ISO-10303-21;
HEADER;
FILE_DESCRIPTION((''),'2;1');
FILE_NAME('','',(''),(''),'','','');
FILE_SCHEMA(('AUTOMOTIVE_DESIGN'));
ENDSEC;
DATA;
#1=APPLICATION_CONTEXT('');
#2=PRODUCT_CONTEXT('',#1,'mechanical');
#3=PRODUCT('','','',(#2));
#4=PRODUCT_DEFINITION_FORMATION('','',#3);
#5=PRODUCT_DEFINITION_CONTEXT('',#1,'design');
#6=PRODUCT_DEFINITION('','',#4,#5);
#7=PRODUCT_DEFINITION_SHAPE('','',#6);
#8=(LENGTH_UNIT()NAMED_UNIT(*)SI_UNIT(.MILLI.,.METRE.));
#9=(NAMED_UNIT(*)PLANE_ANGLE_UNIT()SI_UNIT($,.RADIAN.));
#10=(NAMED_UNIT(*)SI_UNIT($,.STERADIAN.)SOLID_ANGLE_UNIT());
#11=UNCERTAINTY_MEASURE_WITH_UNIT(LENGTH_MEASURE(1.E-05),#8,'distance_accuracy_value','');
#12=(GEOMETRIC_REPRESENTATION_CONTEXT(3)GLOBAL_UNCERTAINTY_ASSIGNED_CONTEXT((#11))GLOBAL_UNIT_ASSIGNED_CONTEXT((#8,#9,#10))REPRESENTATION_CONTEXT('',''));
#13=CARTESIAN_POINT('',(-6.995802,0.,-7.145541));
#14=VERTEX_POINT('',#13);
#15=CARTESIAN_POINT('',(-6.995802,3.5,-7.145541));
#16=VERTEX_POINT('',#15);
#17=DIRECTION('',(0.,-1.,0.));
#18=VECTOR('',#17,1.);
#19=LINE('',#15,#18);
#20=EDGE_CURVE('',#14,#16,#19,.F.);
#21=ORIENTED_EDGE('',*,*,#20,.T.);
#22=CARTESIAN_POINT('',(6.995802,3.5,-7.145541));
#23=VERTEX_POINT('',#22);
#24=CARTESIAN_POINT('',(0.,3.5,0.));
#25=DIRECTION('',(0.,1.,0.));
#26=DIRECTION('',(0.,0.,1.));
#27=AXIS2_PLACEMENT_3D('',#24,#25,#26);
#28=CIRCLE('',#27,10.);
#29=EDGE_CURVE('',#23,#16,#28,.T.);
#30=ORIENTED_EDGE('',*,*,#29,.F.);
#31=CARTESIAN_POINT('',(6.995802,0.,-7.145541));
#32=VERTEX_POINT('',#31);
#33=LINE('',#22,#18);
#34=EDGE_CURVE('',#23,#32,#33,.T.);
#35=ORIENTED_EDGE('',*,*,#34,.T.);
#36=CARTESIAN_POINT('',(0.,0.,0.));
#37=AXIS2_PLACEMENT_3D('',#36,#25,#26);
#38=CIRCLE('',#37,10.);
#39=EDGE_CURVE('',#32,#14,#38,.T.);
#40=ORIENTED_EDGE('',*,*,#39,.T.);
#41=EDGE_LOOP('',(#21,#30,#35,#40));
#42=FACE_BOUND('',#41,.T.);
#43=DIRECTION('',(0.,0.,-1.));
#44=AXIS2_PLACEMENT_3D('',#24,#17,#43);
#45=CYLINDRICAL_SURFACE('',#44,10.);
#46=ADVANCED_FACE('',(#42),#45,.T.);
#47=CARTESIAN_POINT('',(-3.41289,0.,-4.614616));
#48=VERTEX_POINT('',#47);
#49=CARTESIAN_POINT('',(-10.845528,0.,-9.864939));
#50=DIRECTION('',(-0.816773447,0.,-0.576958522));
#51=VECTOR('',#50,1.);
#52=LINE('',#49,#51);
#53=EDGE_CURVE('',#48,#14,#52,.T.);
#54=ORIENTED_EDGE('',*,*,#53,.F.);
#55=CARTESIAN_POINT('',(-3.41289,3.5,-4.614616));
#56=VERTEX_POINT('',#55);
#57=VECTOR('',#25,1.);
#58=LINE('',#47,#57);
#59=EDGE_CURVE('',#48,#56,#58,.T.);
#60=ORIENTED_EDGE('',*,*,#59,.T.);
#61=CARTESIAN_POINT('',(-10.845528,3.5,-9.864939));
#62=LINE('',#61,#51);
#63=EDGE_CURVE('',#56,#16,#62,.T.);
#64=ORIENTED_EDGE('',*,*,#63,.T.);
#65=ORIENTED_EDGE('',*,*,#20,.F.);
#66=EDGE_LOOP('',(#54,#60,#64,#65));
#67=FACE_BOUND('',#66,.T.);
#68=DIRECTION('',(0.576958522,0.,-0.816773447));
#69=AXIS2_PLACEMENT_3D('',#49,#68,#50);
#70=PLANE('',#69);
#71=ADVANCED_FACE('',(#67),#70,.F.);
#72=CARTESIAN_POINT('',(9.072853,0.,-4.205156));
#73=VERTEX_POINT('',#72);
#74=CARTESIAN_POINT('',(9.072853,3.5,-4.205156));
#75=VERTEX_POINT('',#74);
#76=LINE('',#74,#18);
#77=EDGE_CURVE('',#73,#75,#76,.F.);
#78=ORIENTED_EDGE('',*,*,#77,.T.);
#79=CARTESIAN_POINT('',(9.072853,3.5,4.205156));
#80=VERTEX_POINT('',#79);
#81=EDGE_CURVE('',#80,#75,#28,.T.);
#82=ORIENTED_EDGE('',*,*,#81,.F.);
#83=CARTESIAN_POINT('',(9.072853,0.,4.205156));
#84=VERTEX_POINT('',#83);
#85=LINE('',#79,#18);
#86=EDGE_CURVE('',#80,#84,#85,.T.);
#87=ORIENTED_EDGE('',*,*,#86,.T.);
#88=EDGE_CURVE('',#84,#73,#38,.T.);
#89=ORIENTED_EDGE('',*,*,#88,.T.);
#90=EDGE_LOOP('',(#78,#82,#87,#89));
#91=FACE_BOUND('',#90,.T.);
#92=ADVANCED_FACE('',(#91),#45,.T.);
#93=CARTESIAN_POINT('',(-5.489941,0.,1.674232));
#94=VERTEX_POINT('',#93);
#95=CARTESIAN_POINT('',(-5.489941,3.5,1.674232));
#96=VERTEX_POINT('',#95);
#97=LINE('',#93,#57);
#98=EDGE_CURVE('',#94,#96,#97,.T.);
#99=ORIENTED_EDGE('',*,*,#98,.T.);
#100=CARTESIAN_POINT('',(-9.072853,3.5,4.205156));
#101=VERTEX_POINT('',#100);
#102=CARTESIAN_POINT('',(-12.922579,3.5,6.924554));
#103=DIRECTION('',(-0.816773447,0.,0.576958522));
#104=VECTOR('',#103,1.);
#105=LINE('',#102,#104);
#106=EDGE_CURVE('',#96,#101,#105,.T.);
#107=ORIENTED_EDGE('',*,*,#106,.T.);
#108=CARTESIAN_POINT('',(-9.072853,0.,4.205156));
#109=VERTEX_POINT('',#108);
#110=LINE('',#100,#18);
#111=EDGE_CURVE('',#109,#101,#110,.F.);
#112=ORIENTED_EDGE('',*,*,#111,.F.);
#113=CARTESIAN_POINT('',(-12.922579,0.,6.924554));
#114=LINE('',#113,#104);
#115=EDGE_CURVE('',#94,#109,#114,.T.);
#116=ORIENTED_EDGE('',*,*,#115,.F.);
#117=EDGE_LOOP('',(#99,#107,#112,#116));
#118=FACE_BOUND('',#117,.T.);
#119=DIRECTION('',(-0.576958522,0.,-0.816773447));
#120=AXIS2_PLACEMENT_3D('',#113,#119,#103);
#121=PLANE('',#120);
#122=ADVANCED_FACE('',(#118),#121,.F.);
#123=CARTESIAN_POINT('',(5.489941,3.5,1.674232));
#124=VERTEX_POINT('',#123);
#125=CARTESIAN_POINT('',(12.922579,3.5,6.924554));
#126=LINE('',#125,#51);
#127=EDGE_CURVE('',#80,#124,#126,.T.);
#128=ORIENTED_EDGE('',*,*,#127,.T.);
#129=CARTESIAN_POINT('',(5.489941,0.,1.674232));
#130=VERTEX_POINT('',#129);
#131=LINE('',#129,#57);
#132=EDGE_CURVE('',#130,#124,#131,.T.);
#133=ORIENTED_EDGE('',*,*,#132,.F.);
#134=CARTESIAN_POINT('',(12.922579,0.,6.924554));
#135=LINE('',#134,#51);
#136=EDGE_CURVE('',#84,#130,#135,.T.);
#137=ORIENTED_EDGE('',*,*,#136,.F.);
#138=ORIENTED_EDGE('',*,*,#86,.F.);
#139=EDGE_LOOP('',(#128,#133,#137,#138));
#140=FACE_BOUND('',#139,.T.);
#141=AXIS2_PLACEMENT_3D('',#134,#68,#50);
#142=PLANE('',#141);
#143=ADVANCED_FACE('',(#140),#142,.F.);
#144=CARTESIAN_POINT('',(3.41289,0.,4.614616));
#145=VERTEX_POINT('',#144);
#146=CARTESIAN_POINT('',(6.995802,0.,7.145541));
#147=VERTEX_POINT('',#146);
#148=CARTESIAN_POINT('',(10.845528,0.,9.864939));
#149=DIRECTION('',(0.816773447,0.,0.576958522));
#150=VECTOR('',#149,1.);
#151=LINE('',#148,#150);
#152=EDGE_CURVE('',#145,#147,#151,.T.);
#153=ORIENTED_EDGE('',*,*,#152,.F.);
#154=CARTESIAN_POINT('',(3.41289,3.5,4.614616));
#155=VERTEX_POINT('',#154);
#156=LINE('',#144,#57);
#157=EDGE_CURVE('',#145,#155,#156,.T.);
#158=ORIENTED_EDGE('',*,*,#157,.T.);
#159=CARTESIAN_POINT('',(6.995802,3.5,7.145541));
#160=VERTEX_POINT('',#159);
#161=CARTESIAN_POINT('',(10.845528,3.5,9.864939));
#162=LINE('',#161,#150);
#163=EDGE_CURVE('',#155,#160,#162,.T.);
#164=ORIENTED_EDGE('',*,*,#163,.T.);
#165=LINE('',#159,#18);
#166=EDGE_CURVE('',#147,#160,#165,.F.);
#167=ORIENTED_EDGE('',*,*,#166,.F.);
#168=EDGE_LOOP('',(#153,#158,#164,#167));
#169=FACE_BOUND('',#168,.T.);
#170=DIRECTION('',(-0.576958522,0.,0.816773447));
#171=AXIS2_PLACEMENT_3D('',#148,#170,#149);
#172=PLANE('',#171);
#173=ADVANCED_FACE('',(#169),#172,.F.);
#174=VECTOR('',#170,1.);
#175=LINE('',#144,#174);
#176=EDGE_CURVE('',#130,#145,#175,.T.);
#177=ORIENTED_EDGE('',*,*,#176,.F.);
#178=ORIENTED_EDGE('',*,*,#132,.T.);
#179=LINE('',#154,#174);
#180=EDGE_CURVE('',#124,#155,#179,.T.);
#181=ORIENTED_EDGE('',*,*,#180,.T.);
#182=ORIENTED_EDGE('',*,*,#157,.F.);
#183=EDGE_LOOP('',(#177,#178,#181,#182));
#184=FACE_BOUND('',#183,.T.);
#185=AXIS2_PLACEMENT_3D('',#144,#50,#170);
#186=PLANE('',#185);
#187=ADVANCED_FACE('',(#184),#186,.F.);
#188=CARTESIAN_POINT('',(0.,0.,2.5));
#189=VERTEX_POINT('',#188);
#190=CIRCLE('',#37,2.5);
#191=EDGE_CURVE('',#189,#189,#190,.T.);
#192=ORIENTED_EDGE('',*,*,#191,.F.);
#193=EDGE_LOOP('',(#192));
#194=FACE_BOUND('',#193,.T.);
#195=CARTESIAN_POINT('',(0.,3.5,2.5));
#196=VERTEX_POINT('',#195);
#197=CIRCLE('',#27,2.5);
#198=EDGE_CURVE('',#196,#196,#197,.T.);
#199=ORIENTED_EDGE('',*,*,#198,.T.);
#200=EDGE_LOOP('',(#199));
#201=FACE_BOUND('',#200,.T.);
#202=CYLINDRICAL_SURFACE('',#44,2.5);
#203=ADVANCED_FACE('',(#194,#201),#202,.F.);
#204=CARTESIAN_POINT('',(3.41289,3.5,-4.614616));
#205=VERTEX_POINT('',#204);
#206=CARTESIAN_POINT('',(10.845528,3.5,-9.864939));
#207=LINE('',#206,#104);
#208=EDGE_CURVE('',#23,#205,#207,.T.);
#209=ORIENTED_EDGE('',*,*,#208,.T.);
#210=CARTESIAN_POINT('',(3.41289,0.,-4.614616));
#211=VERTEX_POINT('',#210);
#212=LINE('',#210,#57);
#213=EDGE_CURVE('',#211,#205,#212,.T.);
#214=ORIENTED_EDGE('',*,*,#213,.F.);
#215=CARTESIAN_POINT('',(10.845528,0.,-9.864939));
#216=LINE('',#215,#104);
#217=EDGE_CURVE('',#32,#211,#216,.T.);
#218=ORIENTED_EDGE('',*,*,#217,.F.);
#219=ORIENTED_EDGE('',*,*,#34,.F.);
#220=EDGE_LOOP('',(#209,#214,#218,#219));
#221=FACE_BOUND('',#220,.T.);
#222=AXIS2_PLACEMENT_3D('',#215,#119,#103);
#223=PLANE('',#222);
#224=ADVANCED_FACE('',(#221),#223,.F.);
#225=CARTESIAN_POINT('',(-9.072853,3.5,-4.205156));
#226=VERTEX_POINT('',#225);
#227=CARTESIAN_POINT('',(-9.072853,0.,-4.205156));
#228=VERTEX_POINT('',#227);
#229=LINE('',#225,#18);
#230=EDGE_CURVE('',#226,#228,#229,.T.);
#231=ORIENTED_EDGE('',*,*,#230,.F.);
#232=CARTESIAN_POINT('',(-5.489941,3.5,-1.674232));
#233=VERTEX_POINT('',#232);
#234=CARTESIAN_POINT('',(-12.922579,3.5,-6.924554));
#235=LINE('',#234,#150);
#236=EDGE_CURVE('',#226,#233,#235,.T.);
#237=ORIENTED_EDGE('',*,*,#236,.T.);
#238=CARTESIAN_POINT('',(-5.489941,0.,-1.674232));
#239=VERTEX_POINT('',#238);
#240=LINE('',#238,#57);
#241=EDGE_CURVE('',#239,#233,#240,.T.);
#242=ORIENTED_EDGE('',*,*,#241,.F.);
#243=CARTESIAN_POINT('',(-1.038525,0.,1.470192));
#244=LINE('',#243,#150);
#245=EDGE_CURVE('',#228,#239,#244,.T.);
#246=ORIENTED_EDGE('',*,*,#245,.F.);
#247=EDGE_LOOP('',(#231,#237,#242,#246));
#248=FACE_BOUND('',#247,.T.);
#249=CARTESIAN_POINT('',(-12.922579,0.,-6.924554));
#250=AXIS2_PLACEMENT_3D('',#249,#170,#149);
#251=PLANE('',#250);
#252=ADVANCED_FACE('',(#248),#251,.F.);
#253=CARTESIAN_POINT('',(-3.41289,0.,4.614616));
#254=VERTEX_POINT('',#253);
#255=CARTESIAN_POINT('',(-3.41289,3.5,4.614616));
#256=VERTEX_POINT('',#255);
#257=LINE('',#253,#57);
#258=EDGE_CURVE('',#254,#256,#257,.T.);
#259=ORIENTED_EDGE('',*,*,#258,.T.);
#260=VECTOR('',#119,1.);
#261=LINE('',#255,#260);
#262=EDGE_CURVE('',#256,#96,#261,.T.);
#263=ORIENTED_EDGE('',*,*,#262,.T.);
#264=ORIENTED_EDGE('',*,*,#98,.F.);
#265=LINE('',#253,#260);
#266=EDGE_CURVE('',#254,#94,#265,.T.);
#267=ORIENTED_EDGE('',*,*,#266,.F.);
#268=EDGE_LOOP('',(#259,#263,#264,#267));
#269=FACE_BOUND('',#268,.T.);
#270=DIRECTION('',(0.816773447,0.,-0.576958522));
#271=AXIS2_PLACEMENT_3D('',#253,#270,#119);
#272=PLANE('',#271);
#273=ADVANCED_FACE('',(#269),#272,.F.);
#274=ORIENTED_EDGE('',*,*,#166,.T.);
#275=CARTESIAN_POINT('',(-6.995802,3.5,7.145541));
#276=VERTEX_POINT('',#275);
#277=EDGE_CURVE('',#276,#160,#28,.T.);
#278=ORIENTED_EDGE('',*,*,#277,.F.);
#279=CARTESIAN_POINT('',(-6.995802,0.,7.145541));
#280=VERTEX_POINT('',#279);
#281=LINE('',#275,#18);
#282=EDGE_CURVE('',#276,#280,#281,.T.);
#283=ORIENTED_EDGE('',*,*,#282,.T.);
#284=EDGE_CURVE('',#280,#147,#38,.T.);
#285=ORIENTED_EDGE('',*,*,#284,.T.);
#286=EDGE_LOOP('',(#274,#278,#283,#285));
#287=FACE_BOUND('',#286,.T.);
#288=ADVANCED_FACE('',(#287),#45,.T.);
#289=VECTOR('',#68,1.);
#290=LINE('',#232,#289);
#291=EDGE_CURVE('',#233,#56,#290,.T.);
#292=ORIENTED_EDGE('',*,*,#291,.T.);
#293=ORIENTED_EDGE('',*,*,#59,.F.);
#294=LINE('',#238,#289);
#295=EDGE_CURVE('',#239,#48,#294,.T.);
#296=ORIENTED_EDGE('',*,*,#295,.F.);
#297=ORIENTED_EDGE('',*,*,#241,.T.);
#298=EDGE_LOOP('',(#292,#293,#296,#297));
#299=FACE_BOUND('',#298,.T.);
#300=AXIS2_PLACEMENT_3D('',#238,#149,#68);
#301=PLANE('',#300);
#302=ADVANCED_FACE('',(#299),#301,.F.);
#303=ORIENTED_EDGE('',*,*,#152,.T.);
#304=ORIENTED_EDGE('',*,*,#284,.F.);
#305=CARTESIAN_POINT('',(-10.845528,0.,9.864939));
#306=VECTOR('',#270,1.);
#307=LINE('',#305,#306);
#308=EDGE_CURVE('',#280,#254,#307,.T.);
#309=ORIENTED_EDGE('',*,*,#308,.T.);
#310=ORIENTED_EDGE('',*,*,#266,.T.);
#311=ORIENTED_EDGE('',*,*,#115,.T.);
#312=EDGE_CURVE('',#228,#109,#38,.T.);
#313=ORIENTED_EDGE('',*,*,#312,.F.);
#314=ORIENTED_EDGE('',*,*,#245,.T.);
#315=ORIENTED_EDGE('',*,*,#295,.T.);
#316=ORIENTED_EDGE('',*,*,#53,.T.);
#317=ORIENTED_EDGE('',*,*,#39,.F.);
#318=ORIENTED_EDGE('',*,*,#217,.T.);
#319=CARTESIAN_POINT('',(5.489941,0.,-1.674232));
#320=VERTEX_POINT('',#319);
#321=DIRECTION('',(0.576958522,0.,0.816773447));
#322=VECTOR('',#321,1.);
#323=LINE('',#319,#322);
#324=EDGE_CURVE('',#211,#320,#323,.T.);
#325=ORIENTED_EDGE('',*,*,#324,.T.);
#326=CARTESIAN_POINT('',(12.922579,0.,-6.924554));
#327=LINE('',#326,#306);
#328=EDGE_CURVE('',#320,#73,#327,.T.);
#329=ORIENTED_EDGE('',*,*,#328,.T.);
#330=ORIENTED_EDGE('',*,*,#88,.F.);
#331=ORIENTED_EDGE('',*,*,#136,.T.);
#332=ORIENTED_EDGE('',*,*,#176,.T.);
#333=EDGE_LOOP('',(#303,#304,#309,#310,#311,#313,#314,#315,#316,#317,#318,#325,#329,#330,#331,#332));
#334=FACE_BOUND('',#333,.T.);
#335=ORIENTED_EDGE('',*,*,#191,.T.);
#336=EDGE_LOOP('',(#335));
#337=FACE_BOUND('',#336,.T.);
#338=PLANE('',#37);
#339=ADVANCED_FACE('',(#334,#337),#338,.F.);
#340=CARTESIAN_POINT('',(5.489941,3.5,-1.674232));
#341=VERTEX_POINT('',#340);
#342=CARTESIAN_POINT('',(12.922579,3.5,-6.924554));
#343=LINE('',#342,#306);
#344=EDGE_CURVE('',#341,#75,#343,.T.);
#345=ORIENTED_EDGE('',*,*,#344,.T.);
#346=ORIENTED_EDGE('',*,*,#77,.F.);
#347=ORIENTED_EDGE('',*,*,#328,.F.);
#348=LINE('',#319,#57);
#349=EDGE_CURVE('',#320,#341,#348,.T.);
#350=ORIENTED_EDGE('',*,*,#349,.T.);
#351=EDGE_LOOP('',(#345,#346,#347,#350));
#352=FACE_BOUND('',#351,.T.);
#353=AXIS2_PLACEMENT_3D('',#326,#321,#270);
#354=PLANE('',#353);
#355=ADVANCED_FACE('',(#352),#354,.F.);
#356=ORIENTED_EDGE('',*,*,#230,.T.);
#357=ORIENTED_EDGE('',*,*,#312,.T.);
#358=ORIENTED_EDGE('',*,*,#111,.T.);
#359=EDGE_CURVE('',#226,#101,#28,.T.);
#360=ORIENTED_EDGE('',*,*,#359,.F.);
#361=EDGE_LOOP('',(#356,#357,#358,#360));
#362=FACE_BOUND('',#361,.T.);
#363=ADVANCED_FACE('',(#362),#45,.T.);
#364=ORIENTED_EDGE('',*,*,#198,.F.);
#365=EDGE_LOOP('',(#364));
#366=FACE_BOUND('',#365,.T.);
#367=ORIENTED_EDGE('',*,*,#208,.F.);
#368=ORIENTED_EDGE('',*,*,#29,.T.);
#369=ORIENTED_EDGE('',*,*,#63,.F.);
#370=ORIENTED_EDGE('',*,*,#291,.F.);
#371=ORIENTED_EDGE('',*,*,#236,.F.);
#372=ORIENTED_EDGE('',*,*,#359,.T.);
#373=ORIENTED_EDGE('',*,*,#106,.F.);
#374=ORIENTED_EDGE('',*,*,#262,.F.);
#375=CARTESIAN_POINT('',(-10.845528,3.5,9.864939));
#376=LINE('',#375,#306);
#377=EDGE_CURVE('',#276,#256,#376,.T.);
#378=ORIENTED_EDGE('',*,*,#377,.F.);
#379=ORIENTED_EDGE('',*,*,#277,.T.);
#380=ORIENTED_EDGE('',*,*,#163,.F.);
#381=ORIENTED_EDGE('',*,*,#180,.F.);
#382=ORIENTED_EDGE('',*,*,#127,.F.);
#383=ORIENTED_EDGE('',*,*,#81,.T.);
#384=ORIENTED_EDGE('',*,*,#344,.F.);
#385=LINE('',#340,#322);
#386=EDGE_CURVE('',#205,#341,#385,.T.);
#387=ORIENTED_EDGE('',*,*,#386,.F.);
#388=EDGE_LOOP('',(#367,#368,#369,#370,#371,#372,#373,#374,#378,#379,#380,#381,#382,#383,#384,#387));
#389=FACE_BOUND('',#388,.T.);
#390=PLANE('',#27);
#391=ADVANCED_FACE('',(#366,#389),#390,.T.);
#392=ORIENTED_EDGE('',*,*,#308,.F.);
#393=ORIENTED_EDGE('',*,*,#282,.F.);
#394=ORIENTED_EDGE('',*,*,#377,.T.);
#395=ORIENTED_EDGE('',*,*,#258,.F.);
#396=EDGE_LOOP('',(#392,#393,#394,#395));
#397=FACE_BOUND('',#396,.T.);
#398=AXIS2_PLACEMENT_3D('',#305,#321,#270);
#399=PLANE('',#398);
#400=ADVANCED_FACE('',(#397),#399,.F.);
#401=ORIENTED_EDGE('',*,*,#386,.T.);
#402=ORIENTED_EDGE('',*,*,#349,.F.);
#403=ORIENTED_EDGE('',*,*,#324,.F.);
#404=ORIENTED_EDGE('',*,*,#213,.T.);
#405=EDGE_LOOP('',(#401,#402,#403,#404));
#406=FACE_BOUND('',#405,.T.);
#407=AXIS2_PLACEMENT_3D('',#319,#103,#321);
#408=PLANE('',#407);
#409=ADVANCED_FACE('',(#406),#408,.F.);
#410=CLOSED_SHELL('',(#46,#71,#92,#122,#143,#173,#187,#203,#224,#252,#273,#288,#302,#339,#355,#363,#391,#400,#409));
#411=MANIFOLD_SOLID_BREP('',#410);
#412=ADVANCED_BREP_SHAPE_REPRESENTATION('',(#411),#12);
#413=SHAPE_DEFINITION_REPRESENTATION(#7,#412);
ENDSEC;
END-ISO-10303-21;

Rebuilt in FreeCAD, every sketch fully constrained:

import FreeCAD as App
import Part
import Sketcher


def add_polygon(sketch, points):
    """Adds a closed chain of lines whose ends are joined by coincident constraints."""
    first, n = sketch.GeometryCount, len(points)
    for a, b in zip(points, points[1:] + points[:1]):
        sketch.addGeometry(Part.LineSegment(App.Vector(*a, 0), App.Vector(*b, 0)), False)
    for i in range(n):
        sketch.addConstraint(Sketcher.Constraint("Coincident", first + i, 2, first + (i + 1) % n, 1))

doc = App.newDocument("Part")
body = doc.addObject("PartDesign::Body", "Body")

sketch1 = doc.addObject("Sketcher::SketchObject", "Sketch")
body.addObject(sketch1)
sketch1.AttachmentSupport = (doc.XZ_Plane, [""])
sketch1.MapMode = "FlatFace"
sketch1.addGeometry([
    Part.Circle(App.Vector(0, 0, 0), App.Vector(0, 0, 1), 10),
    Part.Circle(App.Vector(0, 0, 0), App.Vector(0, 0, 1), 2.5),
], False)
sketch1.addConstraint([
    Sketcher.Constraint("Coincident", 0, 3, -1, 1),
    Sketcher.Constraint("Coincident", 1, 3, -1, 1),
    Sketcher.Constraint("Diameter", 0, 20.0),
    Sketcher.Constraint("Diameter", 1, 5.0),
])
pad1 = doc.addObject("PartDesign::Pad", "Pad")
body.addObject(pad1)
pad1.Profile = sketch1
pad1.Length = 3.5
pad1.Reversed = True

sketch2 = doc.addObject("Sketcher::SketchObject", "Sketch001")
body.addObject(sketch2)
sketch2.AttachmentSupport = (doc.XZ_Plane, [""])
sketch2.MapMode = "FlatFace"
sketch2.AttachmentOffset = App.Placement(App.Vector(0, 0, -3.5), App.Rotation())
add_polygon(sketch2, [(5.5, -1.7), (12.9, -6.9), (10.8, -9.9), (3.4, -4.6)])
add_polygon(sketch2, [(-3.4, 4.6), (-5.5, 1.7), (-12.9, 6.9), (-10.8, 9.9)])
add_polygon(sketch2, [(3.4, 4.6), (10.8, 9.9), (12.9, 6.9), (5.5, 1.7)])
add_polygon(sketch2, [(-5.5, -1.7), (-3.4, -4.6), (-10.8, -9.9), (-12.9, -6.9)])
sketch2.addConstraint([
    Sketcher.Constraint("Symmetric", 3, 2, 4, 2, -1, 1),
    Sketcher.Constraint("Symmetric", 0, 2, 5, 2, -1, 1),
    Sketcher.Constraint("Symmetric", 1, 2, 6, 2, -1, 1),
    Sketcher.Constraint("Symmetric", 2, 2, 7, 2, -1, 1),
    Sketcher.Constraint("Symmetric", 11, 2, 12, 2, -1, 1),
    Sketcher.Constraint("Symmetric", 8, 2, 13, 2, -1, 1),
    Sketcher.Constraint("Symmetric", 9, 2, 14, 2, -1, 1),
    Sketcher.Constraint("Symmetric", 10, 2, 15, 2, -1, 1),
    Sketcher.Constraint("Symmetric", 6, 2, 8, 2, -2),
    Sketcher.Constraint("Symmetric", 5, 2, 9, 2, -2),
    Sketcher.Constraint("Symmetric", 4, 2, 10, 2, -2),
    Sketcher.Constraint("Symmetric", 7, 2, 11, 2, -2),
    Sketcher.Constraint("Perpendicular", 0, 1),
    Sketcher.Constraint("Perpendicular", 1, 2),
    Sketcher.Constraint("Perpendicular", 2, 3),
    Sketcher.Constraint("Distance", 0, 9.1),
    Sketcher.Constraint("Distance", 1, 3.6),
    Sketcher.Constraint("DistanceX", -1, 1, 0, 2, 12.922579),
    Sketcher.Constraint("DistanceX", -1, 1, 1, 2, 10.845528),
    Sketcher.Constraint("DistanceY", 1, 2, -1, 1, 9.864939),
])
pocket1 = doc.addObject("PartDesign::Pocket", "Pocket")
body.addObject(pocket1)
pocket1.Profile = sketch2
pocket1.Length = 3.5
pocket1.Reversed = True

doc.recompute()
